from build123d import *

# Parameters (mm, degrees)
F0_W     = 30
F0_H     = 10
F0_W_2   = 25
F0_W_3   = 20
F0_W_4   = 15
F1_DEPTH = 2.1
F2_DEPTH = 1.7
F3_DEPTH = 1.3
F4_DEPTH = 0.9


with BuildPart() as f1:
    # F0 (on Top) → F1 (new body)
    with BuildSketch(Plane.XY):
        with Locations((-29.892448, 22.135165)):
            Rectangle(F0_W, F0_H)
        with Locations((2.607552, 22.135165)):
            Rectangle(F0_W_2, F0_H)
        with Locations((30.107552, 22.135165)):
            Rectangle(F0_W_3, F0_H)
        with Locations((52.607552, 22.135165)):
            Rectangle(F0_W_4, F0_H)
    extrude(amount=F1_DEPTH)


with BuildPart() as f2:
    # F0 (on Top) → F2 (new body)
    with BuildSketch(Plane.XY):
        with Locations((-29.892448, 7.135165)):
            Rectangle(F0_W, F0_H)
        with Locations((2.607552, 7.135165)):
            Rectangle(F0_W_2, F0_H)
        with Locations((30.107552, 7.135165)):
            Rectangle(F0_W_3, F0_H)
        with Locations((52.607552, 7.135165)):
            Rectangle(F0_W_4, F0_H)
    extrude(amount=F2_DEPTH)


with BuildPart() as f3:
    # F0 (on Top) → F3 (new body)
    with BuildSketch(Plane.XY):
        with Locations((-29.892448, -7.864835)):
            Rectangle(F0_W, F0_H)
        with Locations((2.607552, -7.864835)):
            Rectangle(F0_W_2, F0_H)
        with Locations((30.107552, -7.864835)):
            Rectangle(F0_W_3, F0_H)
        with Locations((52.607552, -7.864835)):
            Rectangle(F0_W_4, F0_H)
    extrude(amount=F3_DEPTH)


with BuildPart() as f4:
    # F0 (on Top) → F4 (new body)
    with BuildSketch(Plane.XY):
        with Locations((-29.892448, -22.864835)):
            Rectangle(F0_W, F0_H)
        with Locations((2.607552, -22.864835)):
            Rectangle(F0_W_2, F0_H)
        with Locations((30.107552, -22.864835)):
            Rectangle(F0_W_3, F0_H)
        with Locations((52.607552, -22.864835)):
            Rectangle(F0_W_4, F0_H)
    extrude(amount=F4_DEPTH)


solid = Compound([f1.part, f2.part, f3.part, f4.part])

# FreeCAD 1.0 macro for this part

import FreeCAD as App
import Part
import Sketcher
from FreeCAD import Vector
Q = App.Units.Quantity


def add_polygon(sketch, points):
    """Adds a closed chain of lines whose ends are joined by coincident constraints."""
    first, n = sketch.GeometryCount, len(points)
    for a, b in zip(points, points[1:] + points[:1]):
        sketch.addGeometry(Part.LineSegment(App.Vector(*a, 0), App.Vector(*b, 0)), False)
    for i in range(n):
        sketch.addConstraint(Sketcher.Constraint("Coincident", first + i, 2, first + (i + 1) % n, 1))

doc = App.newDocument("Part")
params = doc.addObject("Spreadsheet::Sheet", "Params")
for row, (alias, value) in enumerate([
    ("sketch1_width", "30 mm"),
    ("sketch1_width2", "25 mm"),
    ("sketch1_width3", "20 mm"),
    ("sketch1_width4", "15 mm"),
    ("sketch1_height", "10 mm"),
    ("pad1_length", "2.1 mm"),
    ("sketch2_width", "30 mm"),
    ("sketch2_width2", "25 mm"),
    ("sketch2_width3", "20 mm"),
    ("sketch2_width4", "15 mm"),
    ("sketch2_height", "10 mm"),
    ("pad2_length", "1.7 mm"),
    ("sketch3_width", "30 mm"),
    ("sketch3_width2", "25 mm"),
    ("sketch3_width3", "20 mm"),
    ("sketch3_width4", "15 mm"),
    ("sketch3_height", "10 mm"),
    ("pad3_length", "1.3 mm"),
    ("sketch4_width", "30 mm"),
    ("sketch4_width2", "25 mm"),
    ("sketch4_width3", "20 mm"),
    ("sketch4_width4", "15 mm"),
    ("sketch4_height", "10 mm"),
    ("pad4_length", "0.9 mm"),
], start=1):
    params.set(f"A{row}", alias)
    params.set(f"B{row}", "=" + value)
    params.setAlias(f"B{row}", alias)

body = doc.addObject("PartDesign::Body", "Body")
body.AllowCompound = True

sketch1 = doc.addObject("Sketcher::SketchObject", "Sketch")
body.addObject(sketch1)
sketch1.AttachmentSupport = (doc.XY_Plane, [""])
sketch1.MapMode = "FlatFace"
add_polygon(sketch1, [(-45, 27), (-45, 17), (-15, 17), (-15, 27)])
add_polygon(sketch1, [(-10, 27), (-10, 17), (15, 17), (15, 27)])
add_polygon(sketch1, [(20, 27), (20, 17), (40, 17), (40, 27)])
add_polygon(sketch1, [(45, 27), (45, 17), (60, 17), (60, 27)])
sketch1.addConstraint(Sketcher.Constraint("Vertical", 0))
sketch1.addConstraint(Sketcher.Constraint("Horizontal", 1))
sketch1.addConstraint(Sketcher.Constraint("Vertical", 2))
sketch1.addConstraint(Sketcher.Constraint("Horizontal", 3))
sketch1.addConstraint(Sketcher.Constraint("Vertical", 4))
sketch1.addConstraint(Sketcher.Constraint("Horizontal", 5))
sketch1.addConstraint(Sketcher.Constraint("Vertical", 6))
sketch1.addConstraint(Sketcher.Constraint("Horizontal", 7))
sketch1.addConstraint(Sketcher.Constraint("Vertical", 8))
sketch1.addConstraint(Sketcher.Constraint("Horizontal", 9))
sketch1.addConstraint(Sketcher.Constraint("Vertical", 10))
sketch1.addConstraint(Sketcher.Constraint("Horizontal", 11))
sketch1.addConstraint(Sketcher.Constraint("Vertical", 12))
sketch1.addConstraint(Sketcher.Constraint("Horizontal", 13))
sketch1.addConstraint(Sketcher.Constraint("Vertical", 14))
sketch1.addConstraint(Sketcher.Constraint("Horizontal", 15))
sketch1.addConstraint(Sketcher.Constraint("Horizontal", 1, 2, 4, 2))
sketch1.addConstraint(Sketcher.Constraint("Horizontal", 3, 2, 6, 2))
sketch1.addConstraint(Sketcher.Constraint("Horizontal", 5, 2, 8, 2))
sketch1.addConstraint(Sketcher.Constraint("Horizontal", 7, 2, 10, 2))
sketch1.addConstraint(Sketcher.Constraint("Horizontal", 9, 2, 12, 2))
sketch1.addConstraint(Sketcher.Constraint("Horizontal", 11, 2, 14, 2))
sketch1.addConstraint(Sketcher.Constraint("DistanceX", 1, 1, 1, 2, Q("30 mm")))
sketch1.addConstraint(Sketcher.Constraint("DistanceX", 5, 1, 5, 2, Q("25 mm")))
sketch1.addConstraint(Sketcher.Constraint("DistanceX", 9, 1, 9, 2, Q("20 mm")))
sketch1.addConstraint(Sketcher.Constraint("DistanceX", 13, 1, 13, 2, Q("15 mm")))
sketch1.addConstraint(Sketcher.Constraint("DistanceY", 0, 2, 0, 1, Q("10 mm")))
sketch1.addConstraint(Sketcher.Constraint("DistanceX", 1, 2, 4, 2, Q("5 mm")))
sketch1.addConstraint(Sketcher.Constraint("DistanceX", 5, 2, 8, 2, Q("5 mm")))
sketch1.addConstraint(Sketcher.Constraint("DistanceX", 9, 2, 12, 2, Q("5 mm")))
sketch1.addConstraint(Sketcher.Constraint("DistanceX", 0, 2, -1, 1, Q("44.892448 mm")))
sketch1.addConstraint(Sketcher.Constraint("DistanceY", -1, 1, 0, 2, Q("17.135165 mm")))
sketch1.setExpression("Constraints[38]", "Params.sketch1_width")
sketch1.setExpression("Constraints[39]", "Params.sketch1_width2")
sketch1.setExpression("Constraints[40]", "Params.sketch1_width3")
sketch1.setExpression("Constraints[41]", "Params.sketch1_width4")
sketch1.setExpression("Constraints[42]", "Params.sketch1_height")
pad1 = doc.addObject("PartDesign::Pad", "Pad")
body.addObject(pad1)
pad1.Profile = sketch1
pad1.setExpression("Length", "Params.pad1_length")
body2 = doc.addObject("PartDesign::Body", "Body001")
body2.AllowCompound = True

sketch2 = doc.addObject("Sketcher::SketchObject", "Sketch001")
body2.addObject(sketch2)
sketch2.AttachmentSupport = (doc.getObject("XY_Plane001"), [""])
sketch2.MapMode = "FlatFace"
add_polygon(sketch2, [(-45, 12), (-45, 2), (-15, 2), (-15, 12)])
add_polygon(sketch2, [(-10, 12), (-10, 2), (15, 2), (15, 12)])
add_polygon(sketch2, [(20, 12), (20, 2), (40, 2), (40, 12)])
add_polygon(sketch2, [(45, 12), (45, 2), (60, 2), (60, 12)])
sketch2.addConstraint(Sketcher.Constraint("Vertical", 0))
sketch2.addConstraint(Sketcher.Constraint("Horizontal", 1))
sketch2.addConstraint(Sketcher.Constraint("Vertical", 2))
sketch2.addConstraint(Sketcher.Constraint("Horizontal", 3))
sketch2.addConstraint(Sketcher.Constraint("Vertical", 4))
sketch2.addConstraint(Sketcher.Constraint("Horizontal", 5))
sketch2.addConstraint(Sketcher.Constraint("Vertical", 6))
sketch2.addConstraint(Sketcher.Constraint("Horizontal", 7))
sketch2.addConstraint(Sketcher.Constraint("Vertical", 8))
sketch2.addConstraint(Sketcher.Constraint("Horizontal", 9))
sketch2.addConstraint(Sketcher.Constraint("Vertical", 10))
sketch2.addConstraint(Sketcher.Constraint("Horizontal", 11))
sketch2.addConstraint(Sketcher.Constraint("Vertical", 12))
sketch2.addConstraint(Sketcher.Constraint("Horizontal", 13))
sketch2.addConstraint(Sketcher.Constraint("Vertical", 14))
sketch2.addConstraint(Sketcher.Constraint("Horizontal", 15))
sketch2.addConstraint(Sketcher.Constraint("Horizontal", 1, 2, 4, 2))
sketch2.addConstraint(Sketcher.Constraint("Horizontal", 3, 2, 6, 2))
sketch2.addConstraint(Sketcher.Constraint("Horizontal", 5, 2, 8, 2))
sketch2.addConstraint(Sketcher.Constraint("Horizontal", 7, 2, 10, 2))
sketch2.addConstraint(Sketcher.Constraint("Horizontal", 9, 2, 12, 2))
sketch2.addConstraint(Sketcher.Constraint("Horizontal", 11, 2, 14, 2))
sketch2.addConstraint(Sketcher.Constraint("DistanceX", 1, 1, 1, 2, Q("30 mm")))
sketch2.addConstraint(Sketcher.Constraint("DistanceX", 5, 1, 5, 2, Q("25 mm")))
sketch2.addConstraint(Sketcher.Constraint("DistanceX", 9, 1, 9, 2, Q("20 mm")))
sketch2.addConstraint(Sketcher.Constraint("DistanceX", 13, 1, 13, 2, Q("15 mm")))
sketch2.addConstraint(Sketcher.Constraint("DistanceY", 0, 2, 0, 1, Q("10 mm")))
sketch2.addConstraint(Sketcher.Constraint("DistanceX", 1, 2, 4, 2, Q("5 mm")))
sketch2.addConstraint(Sketcher.Constraint("DistanceX", 5, 2, 8, 2, Q("5 mm")))
sketch2.addConstraint(Sketcher.Constraint("DistanceX", 9, 2, 12, 2, Q("5 mm")))
sketch2.addConstraint(Sketcher.Constraint("DistanceX", 0, 2, -1, 1, Q("44.892448 mm")))
sketch2.addConstraint(Sketcher.Constraint("DistanceY", -1, 1, 0, 2, Q("2.135165 mm")))
sketch2.setExpression("Constraints[38]", "Params.sketch2_width")
sketch2.setExpression("Constraints[39]", "Params.sketch2_width2")
sketch2.setExpression("Constraints[40]", "Params.sketch2_width3")
sketch2.setExpression("Constraints[41]", "Params.sketch2_width4")
sketch2.setExpression("Constraints[42]", "Params.sketch2_height")
pad2 = doc.addObject("PartDesign::Pad", "Pad001")
body2.addObject(pad2)
pad2.Profile = sketch2
pad2.setExpression("Length", "Params.pad2_length")
body3 = doc.addObject("PartDesign::Body", "Body002")
body3.AllowCompound = True

sketch3 = doc.addObject("Sketcher::SketchObject", "Sketch002")
body3.addObject(sketch3)
sketch3.AttachmentSupport = (doc.getObject("XY_Plane002"), [""])
sketch3.MapMode = "FlatFace"
add_polygon(sketch3, [(-45, -3), (-45, -13), (-15, -13), (-15, -3)])
add_polygon(sketch3, [(-10, -3), (-10, -13), (15, -13), (15, -3)])
add_polygon(sketch3, [(20, -3), (20, -13), (40, -13), (40, -3)])
add_polygon(sketch3, [(45, -3), (45, -13), (60, -13), (60, -3)])
sketch3.addConstraint(Sketcher.Constraint("Vertical", 0))
sketch3.addConstraint(Sketcher.Constraint("Horizontal", 1))
sketch3.addConstraint(Sketcher.Constraint("Vertical", 2))
sketch3.addConstraint(Sketcher.Constraint("Horizontal", 3))
sketch3.addConstraint(Sketcher.Constraint("Vertical", 4))
sketch3.addConstraint(Sketcher.Constraint("Horizontal", 5))
sketch3.addConstraint(Sketcher.Constraint("Vertical", 6))
sketch3.addConstraint(Sketcher.Constraint("Horizontal", 7))
sketch3.addConstraint(Sketcher.Constraint("Vertical", 8))
sketch3.addConstraint(Sketcher.Constraint("Horizontal", 9))
sketch3.addConstraint(Sketcher.Constraint("Vertical", 10))
sketch3.addConstraint(Sketcher.Constraint("Horizontal", 11))
sketch3.addConstraint(Sketcher.Constraint("Vertical", 12))
sketch3.addConstraint(Sketcher.Constraint("Horizontal", 13))
sketch3.addConstraint(Sketcher.Constraint("Vertical", 14))
sketch3.addConstraint(Sketcher.Constraint("Horizontal", 15))
sketch3.addConstraint(Sketcher.Constraint("Horizontal", 1, 2, 4, 2))
sketch3.addConstraint(Sketcher.Constraint("Horizontal", 3, 2, 6, 2))
sketch3.addConstraint(Sketcher.Constraint("Horizontal", 5, 2, 8, 2))
sketch3.addConstraint(Sketcher.Constraint("Horizontal", 7, 2, 10, 2))
sketch3.addConstraint(Sketcher.Constraint("Horizontal", 9, 2, 12, 2))
sketch3.addConstraint(Sketcher.Constraint("Horizontal", 11, 2, 14, 2))
sketch3.addConstraint(Sketcher.Constraint("DistanceX", 1, 1, 1, 2, Q("30 mm")))
sketch3.addConstraint(Sketcher.Constraint("DistanceX", 5, 1, 5, 2, Q("25 mm")))
sketch3.addConstraint(Sketcher.Constraint("DistanceX", 9, 1, 9, 2, Q("20 mm")))
sketch3.addConstraint(Sketcher.Constraint("DistanceX", 13, 1, 13, 2, Q("15 mm")))
sketch3.addConstraint(Sketcher.Constraint("DistanceY", 0, 2, 0, 1, Q("10 mm")))
sketch3.addConstraint(Sketcher.Constraint("DistanceX", 1, 2, 4, 2, Q("5 mm")))
sketch3.addConstraint(Sketcher.Constraint("DistanceX", 5, 2, 8, 2, Q("5 mm")))
sketch3.addConstraint(Sketcher.Constraint("DistanceX", 9, 2, 12, 2, Q("5 mm")))
sketch3.addConstraint(Sketcher.Constraint("DistanceX", 0, 2, -1, 1, Q("44.892448 mm")))
sketch3.addConstraint(Sketcher.Constraint("DistanceY", 0, 2, -1, 1, Q("12.864835 mm")))
sketch3.setExpression("Constraints[38]", "Params.sketch3_width")
sketch3.setExpression("Constraints[39]", "Params.sketch3_width2")
sketch3.setExpression("Constraints[40]", "Params.sketch3_width3")
sketch3.setExpression("Constraints[41]", "Params.sketch3_width4")
sketch3.setExpression("Constraints[42]", "Params.sketch3_height")
pad3 = doc.addObject("PartDesign::Pad", "Pad002")
body3.addObject(pad3)
pad3.Profile = sketch3
pad3.setExpression("Length", "Params.pad3_length")
body4 = doc.addObject("PartDesign::Body", "Body003")
body4.AllowCompound = True

sketch4 = doc.addObject("Sketcher::SketchObject", "Sketch003")
body4.addObject(sketch4)
sketch4.AttachmentSupport = (doc.getObject("XY_Plane003"), [""])
sketch4.MapMode = "FlatFace"
add_polygon(sketch4, [(-45, -18), (-45, -28), (-15, -28), (-15, -18)])
add_polygon(sketch4, [(-10, -18), (-10, -28), (15, -28), (15, -18)])
add_polygon(sketch4, [(20, -18), (20, -28), (40, -28), (40, -18)])
add_polygon(sketch4, [(45, -18), (45, -28), (60, -28), (60, -18)])
sketch4.addConstraint(Sketcher.Constraint("Vertical", 0))
sketch4.addConstraint(Sketcher.Constraint("Horizontal", 1))
sketch4.addConstraint(Sketcher.Constraint("Vertical", 2))
sketch4.addConstraint(Sketcher.Constraint("Horizontal", 3))
sketch4.addConstraint(Sketcher.Constraint("Vertical", 4))
sketch4.addConstraint(Sketcher.Constraint("Horizontal", 5))
sketch4.addConstraint(Sketcher.Constraint("Vertical", 6))
sketch4.addConstraint(Sketcher.Constraint("Horizontal", 7))
sketch4.addConstraint(Sketcher.Constraint("Vertical", 8))
sketch4.addConstraint(Sketcher.Constraint("Horizontal", 9))
sketch4.addConstraint(Sketcher.Constraint("Vertical", 10))
sketch4.addConstraint(Sketcher.Constraint("Horizontal", 11))
sketch4.addConstraint(Sketcher.Constraint("Vertical", 12))
sketch4.addConstraint(Sketcher.Constraint("Horizontal", 13))
sketch4.addConstraint(Sketcher.Constraint("Vertical", 14))
sketch4.addConstraint(Sketcher.Constraint("Horizontal", 15))
sketch4.addConstraint(Sketcher.Constraint("Horizontal", 1, 2, 4, 2))
sketch4.addConstraint(Sketcher.Constraint("Horizontal", 3, 2, 6, 2))
sketch4.addConstraint(Sketcher.Constraint("Horizontal", 5, 2, 8, 2))
sketch4.addConstraint(Sketcher.Constraint("Horizontal", 7, 2, 10, 2))
sketch4.addConstraint(Sketcher.Constraint("Horizontal", 9, 2, 12, 2))
sketch4.addConstraint(Sketcher.Constraint("Horizontal", 11, 2, 14, 2))
sketch4.addConstraint(Sketcher.Constraint("DistanceX", 1, 1, 1, 2, Q("30 mm")))
sketch4.addConstraint(Sketcher.Constraint("DistanceX", 5, 1, 5, 2, Q("25 mm")))
sketch4.addConstraint(Sketcher.Constraint("DistanceX", 9, 1, 9, 2, Q("20 mm")))
sketch4.addConstraint(Sketcher.Constraint("DistanceX", 13, 1, 13, 2, Q("15 mm")))
sketch4.addConstraint(Sketcher.Constraint("DistanceY", 0, 2, 0, 1, Q("10 mm")))
sketch4.addConstraint(Sketcher.Constraint("DistanceX", 1, 2, 4, 2, Q("5 mm")))
sketch4.addConstraint(Sketcher.Constraint("DistanceX", 5, 2, 8, 2, Q("5 mm")))
sketch4.addConstraint(Sketcher.Constraint("DistanceX", 9, 2, 12, 2, Q("5 mm")))
sketch4.addConstraint(Sketcher.Constraint("DistanceX", 0, 2, -1, 1, Q("44.892448 mm")))
sketch4.addConstraint(Sketcher.Constraint("DistanceY", 0, 2, -1, 1, Q("27.864835 mm")))
sketch4.setExpression("Constraints[38]", "Params.sketch4_width")
sketch4.setExpression("Constraints[39]", "Params.sketch4_width2")
sketch4.setExpression("Constraints[40]", "Params.sketch4_width3")
sketch4.setExpression("Constraints[41]", "Params.sketch4_width4")
sketch4.setExpression("Constraints[42]", "Params.sketch4_height")
pad4 = doc.addObject("PartDesign::Pad", "Pad003")
body4.addObject(pad4)
pad4.Profile = sketch4
pad4.setExpression("Length", "Params.pad4_length")

doc.recompute()
